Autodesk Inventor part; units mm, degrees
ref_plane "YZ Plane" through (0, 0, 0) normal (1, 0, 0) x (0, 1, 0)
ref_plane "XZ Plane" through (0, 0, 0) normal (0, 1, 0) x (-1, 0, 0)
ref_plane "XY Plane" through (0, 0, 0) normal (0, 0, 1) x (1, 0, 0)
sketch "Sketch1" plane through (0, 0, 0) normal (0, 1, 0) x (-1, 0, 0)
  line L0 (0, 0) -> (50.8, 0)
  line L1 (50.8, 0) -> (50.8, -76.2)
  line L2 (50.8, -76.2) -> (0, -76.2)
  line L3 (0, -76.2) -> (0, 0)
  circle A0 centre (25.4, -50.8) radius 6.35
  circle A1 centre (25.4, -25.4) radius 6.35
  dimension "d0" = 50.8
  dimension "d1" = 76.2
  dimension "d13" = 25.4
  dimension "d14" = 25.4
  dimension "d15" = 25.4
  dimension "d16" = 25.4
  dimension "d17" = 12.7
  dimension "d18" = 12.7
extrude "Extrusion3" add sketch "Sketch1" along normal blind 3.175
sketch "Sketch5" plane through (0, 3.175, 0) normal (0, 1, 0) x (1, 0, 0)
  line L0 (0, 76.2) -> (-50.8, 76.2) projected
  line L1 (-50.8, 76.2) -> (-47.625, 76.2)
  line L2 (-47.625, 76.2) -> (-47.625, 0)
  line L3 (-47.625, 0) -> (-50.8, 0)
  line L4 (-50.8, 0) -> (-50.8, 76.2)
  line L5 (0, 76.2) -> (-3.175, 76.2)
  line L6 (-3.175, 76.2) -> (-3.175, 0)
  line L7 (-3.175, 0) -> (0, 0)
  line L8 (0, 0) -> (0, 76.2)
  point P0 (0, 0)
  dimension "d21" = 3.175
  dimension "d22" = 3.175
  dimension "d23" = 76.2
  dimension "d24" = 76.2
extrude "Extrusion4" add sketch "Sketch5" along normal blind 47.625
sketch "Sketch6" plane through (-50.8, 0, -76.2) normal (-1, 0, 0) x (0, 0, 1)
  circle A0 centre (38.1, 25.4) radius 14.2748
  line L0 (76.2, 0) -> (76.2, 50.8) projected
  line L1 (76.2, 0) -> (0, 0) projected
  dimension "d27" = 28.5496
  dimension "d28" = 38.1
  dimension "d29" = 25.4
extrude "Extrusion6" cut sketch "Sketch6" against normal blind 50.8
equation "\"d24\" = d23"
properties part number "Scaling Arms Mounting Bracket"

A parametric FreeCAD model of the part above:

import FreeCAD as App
import Part
import Sketcher

V = App.Vector
Q = App.Units.Quantity

doc = App.newDocument("Part")
params = doc.addObject("Spreadsheet::Sheet", "Params")
for row, (alias, value) in enumerate([
    ("sketch1_diameter", "0.5 in"),
    ("sketch1_width", "2 in"),
    ("sketch1_height", "3 in"),
    ("pad1_length", "0.125 in"),
    ("sketch2_height", "3 in"),
    ("sketch2_width", "0.125 in"),
    ("pad2_length", "1.875 in"),
    ("sketch3_diameter", "1.124 in"),
    ("pocket1_length", "2 in"),
], start=1):
    params.set(f"A{row}", alias)
    params.set(f"B{row}", "=" + value)
    params.setAlias(f"B{row}", alias)

body = doc.addObject("PartDesign::Body", "Body")

sketch1 = body.newObject("Sketcher::SketchObject", "Sketch")
sketch1.AttachmentSupport = (doc.getObject("XZ_Plane"), [""])
sketch1.MapMode = "FlatFace"
sketch1.addGeometry([
    Part.LineSegment(V(-50.8, 0, 0), V(0, 0, 0)),
    Part.LineSegment(V(0, 0, 0), V(0, -76.2, 0)),
    Part.LineSegment(V(0, -76.2, 0), V(-50.8, -76.2, 0)),
    Part.LineSegment(V(-50.8, -76.2, 0), V(-50.8, 0, 0)),
    Part.Circle(V(-25.4, -50.8, 0), V(0, 0, 1), 6.35),
    Part.Circle(V(-25.4, -25.4, 0), V(0, 0, 1), 6.35),
], False)
sketch1.addConstraint([
    Sketcher.Constraint("Coincident", 0, 2, 1, 1),
    Sketcher.Constraint("Coincident", 1, 2, 2, 1),
    Sketcher.Constraint("Coincident", 2, 2, 3, 1),
    Sketcher.Constraint("Coincident", 3, 2, 0, 1),
    Sketcher.Constraint("Horizontal", 0),
    Sketcher.Constraint("Vertical", 1),
    Sketcher.Constraint("Horizontal", 2),
    Sketcher.Constraint("Vertical", 3),
    Sketcher.Constraint("Coincident", 0, 2, -1, 1),
    Sketcher.Constraint("Equal", 4, 5),
    Sketcher.Constraint("Vertical", 4, 3, 5, 3),
    Sketcher.Constraint("Diameter", 4, Q("0.5 in")),
    Sketcher.Constraint("DistanceX", 0, 1, 0, 2, Q("2 in")),
    Sketcher.Constraint("DistanceY", 1, 2, 1, 1, Q("3 in")),
    Sketcher.Constraint("DistanceX", 4, 3, -1, 1, Q("1 in")),
    Sketcher.Constraint("DistanceY", 4, 3, -1, 1, Q("2 in")),
    Sketcher.Constraint("DistanceY", 5, 3, -1, 1, Q("1 in")),
])
sketch1.setExpression("Constraints[11]", "Params.sketch1_diameter")
sketch1.setExpression("Constraints[12]", "Params.sketch1_width")
sketch1.setExpression("Constraints[13]", "Params.sketch1_height")
pad1 = body.newObject("PartDesign::Pad", "Pad")
pad1.Profile = sketch1
pad1.setExpression("Length", "Params.pad1_length")
pad1.Reversed = True

sketch2 = body.newObject("Sketcher::SketchObject", "Sketch001")
sketch2.AttachmentSupport = (doc.getObject("XZ_Plane"), [""])
sketch2.MapMode = "FlatFace"
sketch2.AttachmentOffset = App.Placement(V(0, 0, -0.125 * 25.4), App.Rotation())
sketch2.addGeometry([
    Part.LineSegment(V(0, 0, 0), V(0, -76.2, 0)),
    Part.LineSegment(V(0, -76.2, 0), V(-3.175, -76.2, 0)),
    Part.LineSegment(V(-3.175, -76.2, 0), V(-3.175, 0, 0)),
    Part.LineSegment(V(-3.175, 0, 0), V(0, 0, 0)),
    Part.LineSegment(V(-47.625, 0, 0), V(-47.625, -76.2, 0)),
    Part.LineSegment(V(-47.625, -76.2, 0), V(-50.8, -76.2, 0)),
    Part.LineSegment(V(-50.8, -76.2, 0), V(-50.8, 0, 0)),
    Part.LineSegment(V(-50.8, 0, 0), V(-47.625, 0, 0)),
], False)
sketch2.addConstraint([
    Sketcher.Constraint("Coincident", 0, 2, 1, 1),
    Sketcher.Constraint("Coincident", 1, 2, 2, 1),
    Sketcher.Constraint("Coincident", 2, 2, 3, 1),
    Sketcher.Constraint("Coincident", 3, 2, 0, 1),
    Sketcher.Constraint("Coincident", 4, 2, 5, 1),
    Sketcher.Constraint("Coincident", 5, 2, 6, 1),
    Sketcher.Constraint("Coincident", 6, 2, 7, 1),
    Sketcher.Constraint("Coincident", 7, 2, 4, 1),
    Sketcher.Constraint("Vertical", 0),
    Sketcher.Constraint("Horizontal", 1),
    Sketcher.Constraint("Vertical", 2),
    Sketcher.Constraint("Horizontal", 3),
    Sketcher.Constraint("Vertical", 4),
    Sketcher.Constraint("Horizontal", 5),
    Sketcher.Constraint("Vertical", 6),
    Sketcher.Constraint("Horizontal", 7),
    Sketcher.Constraint("Coincident", 3, 2, -1, 1),
    Sketcher.Constraint("PointOnObject", 6, 2, -1),
    Sketcher.Constraint("Horizontal", 1, 2, 4, 2),
    Sketcher.Constraint("Equal", 3, 5),
    Sketcher.Constraint("DistanceY", 0, 2, 0, 1, Q("3 in")),
    Sketcher.Constraint("DistanceX", 1, 2, 1, 1, Q("0.125 in")),
    Sketcher.Constraint("DistanceX", 5, 2, -1, 1, Q("2 in")),
])
sketch2.setExpression("Constraints[20]", "Params.sketch2_height")
sketch2.setExpression("Constraints[21]", "Params.sketch2_width")
pad2 = body.newObject("PartDesign::Pad", "Pad001")
pad2.Profile = sketch2
pad2.setExpression("Length", "Params.pad2_length")
pad2.Reversed = True

sketch3 = body.newObject("Sketcher::SketchObject", "Sketch002")
sketch3.AttachmentSupport = (doc.getObject("YZ_Plane"), [""])
sketch3.MapMode = "FlatFace"
sketch3.AttachmentOffset = App.Placement(V(0, 0, -2 * 25.4), App.Rotation())
sketch3.addGeometry(Part.Circle(V(25.4, -38.1, 0), V(0, 0, 1), 14.2748), False)
sketch3.addConstraint([
    Sketcher.Constraint("Diameter", 0, Q("1.124 in")),
    Sketcher.Constraint("DistanceX", -1, 1, 0, 3, Q("1 in")),
    Sketcher.Constraint("DistanceY", 0, 3, -1, 1, Q("1.5 in")),
])
sketch3.setExpression("Constraints[0]", "Params.sketch3_diameter")
pocket1 = body.newObject("PartDesign::Pocket", "Pocket")
pocket1.Profile = sketch3
pocket1.setExpression("Length", "Params.pocket1_length")
pocket1.Reversed = True

doc.recompute()
